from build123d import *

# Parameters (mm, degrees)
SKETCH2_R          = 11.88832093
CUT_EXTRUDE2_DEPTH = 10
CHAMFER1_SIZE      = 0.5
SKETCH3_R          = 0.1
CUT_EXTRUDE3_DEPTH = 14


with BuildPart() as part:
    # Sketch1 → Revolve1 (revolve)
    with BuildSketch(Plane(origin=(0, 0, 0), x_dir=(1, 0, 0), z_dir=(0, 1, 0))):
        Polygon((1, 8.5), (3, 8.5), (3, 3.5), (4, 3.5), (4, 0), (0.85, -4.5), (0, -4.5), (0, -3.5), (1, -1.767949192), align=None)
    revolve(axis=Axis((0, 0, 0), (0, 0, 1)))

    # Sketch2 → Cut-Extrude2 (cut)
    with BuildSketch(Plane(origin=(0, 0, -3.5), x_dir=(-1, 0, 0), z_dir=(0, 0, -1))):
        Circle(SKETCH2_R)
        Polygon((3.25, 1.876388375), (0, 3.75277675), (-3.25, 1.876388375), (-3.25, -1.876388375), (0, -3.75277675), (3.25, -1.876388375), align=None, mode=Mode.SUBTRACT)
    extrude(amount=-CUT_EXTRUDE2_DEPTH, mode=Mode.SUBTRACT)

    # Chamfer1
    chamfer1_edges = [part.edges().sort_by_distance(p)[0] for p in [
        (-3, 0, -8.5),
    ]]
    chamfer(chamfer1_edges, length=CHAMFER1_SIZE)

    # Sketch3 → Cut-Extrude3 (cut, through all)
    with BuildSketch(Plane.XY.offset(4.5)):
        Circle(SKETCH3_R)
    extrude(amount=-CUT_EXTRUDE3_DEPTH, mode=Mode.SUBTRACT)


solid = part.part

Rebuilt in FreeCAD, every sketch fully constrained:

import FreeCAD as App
import Part
import Sketcher

V = App.Vector
Q = App.Units.Quantity


def edges_at(feature, points):
    """Names of the edges that pass closest to the given points."""
    edges = feature.Shape.Edges
    near = lambda p: min(range(len(edges)), key=lambda i: edges[i].distToShape(Part.Vertex(*p))[0])
    return sorted({f"Edge{near(p) + 1}" for p in points})

doc = App.newDocument("Part")
body = doc.addObject("PartDesign::Body", "Body")

# Sketch on XZ plane
sketch1 = doc.addObject("Sketcher::SketchObject", "Sketch")
body.addObject(sketch1)
sketch1.AttachmentSupport = (doc.XZ_Plane, [""])
sketch1.MapMode = "FlatFace"
sketch1.addGeometry([
    Part.LineSegment(V(3, -8.5, 0), V(1, -8.5, 0)),  # 0
    Part.LineSegment(V(1, -8.5, 0), V(1, 1.8, 0)),  # 1
    Part.LineSegment(V(1, 1.8, 0), V(0, 3.5, 0)),  # 2
    Part.LineSegment(V(0, 3.5, 0), V(0, 4.5, 0)),  # 3
    Part.LineSegment(V(0, 4.5, 0), V(0.8, 4.5, 0)),  # 4
    Part.LineSegment(V(0.8, 4.5, 0), V(4, 0, 0)),  # 5
    Part.LineSegment(V(4, 0, 0), V(4, -3.5, 0)),  # 6
    Part.LineSegment(V(4, -3.5, 0), V(3, -3.5, 0)),  # 7
    Part.LineSegment(V(3, -3.5, 0), V(3, -8.5, 0)),  # 8
], False)
sketch1.addConstraint([
    Sketcher.Constraint("Coincident", 0, 2, 1, 1),
    Sketcher.Constraint("Coincident", 1, 2, 2, 1),
    Sketcher.Constraint("Coincident", 2, 2, 3, 1),
    Sketcher.Constraint("Coincident", 3, 2, 4, 1),
    Sketcher.Constraint("Coincident", 4, 2, 5, 1),
    Sketcher.Constraint("Coincident", 5, 2, 6, 1),
    Sketcher.Constraint("Coincident", 6, 2, 7, 1),
    Sketcher.Constraint("Coincident", 7, 2, 8, 1),
    Sketcher.Constraint("Coincident", 8, 2, 0, 1),
    Sketcher.Constraint("Horizontal", 0),
    Sketcher.Constraint("Vertical", 1),
    Sketcher.Constraint("Vertical", 3),
    Sketcher.Constraint("Horizontal", 4),
    Sketcher.Constraint("Vertical", 6),
    Sketcher.Constraint("Horizontal", 7),
    Sketcher.Constraint("Vertical", 8),
    Sketcher.Constraint("PointOnObject", 2, 2, -2),
    Sketcher.Constraint("PointOnObject", 5, 2, -1),
    Sketcher.Constraint("Equal", 7, 3),
    Sketcher.Constraint("DistanceX", 0, 2, 0, 1, Q("2 mm")),
    Sketcher.Constraint("DistanceX", 7, 2, 7, 1, Q("1 mm")),
    Sketcher.Constraint("DistanceY", 8, 2, 8, 1, Q("5 mm")),
    Sketcher.Constraint("Angle", 2, Q("120 deg")),
    Sketcher.Constraint("Distance", 2, Q("2 mm")),
    Sketcher.Constraint("DistanceY", 6, 2, 6, 1, Q("3.5 mm")),
    Sketcher.Constraint("DistanceY", 0, 2, 2, 2, Q("12 mm")),
    Sketcher.Constraint("DistanceX", 4, 1, 4, 2, Q("0.85 mm")),
])
revolution = doc.addObject("PartDesign::Revolution", "Revolution")
body.addObject(revolution)
revolution.Profile = sketch1
revolution.ReferenceAxis = (sketch1, ["V_Axis"])
revolution.Angle = 360

# Sketch on XY plane
sketch2 = doc.addObject("Sketcher::SketchObject", "Sketch001")
body.addObject(sketch2)
sketch2.AttachmentSupport = (doc.XY_Plane, [""])
sketch2.MapMode = "FlatFace"
sketch2.AttachmentOffset = App.Placement(V(0, 0, -3.5), App.Rotation())
sketch2.addGeometry([
    Part.Circle(V(0, 0, 0), V(0, 0, 1), 11.9),  # 0
    Part.LineSegment(V(0, 3.8, 0), V(-3.2, 1.9, 0)),  # 1
    Part.LineSegment(V(-3.2, 1.9, 0), V(-3.2, -1.9, 0)),  # 2
    Part.LineSegment(V(-3.2, -1.9, 0), V(0, -3.8, 0)),  # 3
    Part.LineSegment(V(0, -3.8, 0), V(3.2, -1.9, 0)),  # 4
    Part.LineSegment(V(3.2, -1.9, 0), V(3.2, 1.9, 0)),  # 5
    Part.LineSegment(V(3.2, 1.9, 0), V(0, 3.8, 0)),  # 6
], False)
sketch2.addConstraint([
    Sketcher.Constraint("Coincident", 1, 2, 2, 1),
    Sketcher.Constraint("Coincident", 2, 2, 3, 1),
    Sketcher.Constraint("Coincident", 3, 2, 4, 1),
    Sketcher.Constraint("Coincident", 4, 2, 5, 1),
    Sketcher.Constraint("Coincident", 5, 2, 6, 1),
    Sketcher.Constraint("Coincident", 6, 2, 1, 1),
    Sketcher.Constraint("Vertical", 2),
    Sketcher.Constraint("Vertical", 5),
    Sketcher.Constraint("Coincident", 0, 3, -1, 1),
    Sketcher.Constraint("Symmetric", 1, 2, 4, 2, -1, 1),
    Sketcher.Constraint("Symmetric", 3, 2, 6, 2, -1, 1),
    Sketcher.Constraint("PointOnObject", 3, 2, -2),
    Sketcher.Constraint("Parallel", 3, 6),
    Sketcher.Constraint("Horizontal", 2, 2, 4, 2),
    Sketcher.Constraint("Angle", 1, Q("-150 deg")),
    Sketcher.Constraint("DistanceX", 2, 2, 4, 2, Q("6.5 mm")),
    Sketcher.Constraint("Diameter", 0, Q("23.776642 mm")),
    Sketcher.Constraint("DistanceY", 2, 2, 2, 1, Q("3.752777 mm")),
])
pocket1 = doc.addObject("PartDesign::Pocket", "Pocket")
body.addObject(pocket1)
pocket1.Profile = sketch2
pocket1.Length = 10
pocket1.Reversed = True
doc.recompute()

chamfer = doc.addObject("PartDesign::Chamfer", "Chamfer")
body.addObject(chamfer)
chamfer.Base = (pocket1, edges_at(pocket1, [(-3, 0, -8.5)]))
chamfer.Size = 0.5

# Sketch on XY plane
sketch3 = doc.addObject("Sketcher::SketchObject", "Sketch002")
body.addObject(sketch3)
sketch3.AttachmentSupport = (doc.XY_Plane, [""])
sketch3.MapMode = "FlatFace"
sketch3.AttachmentOffset = App.Placement(V(0, 0, 4.5), App.Rotation())
sketch3.addGeometry(Part.Circle(V(0, 0, 0), V(0, 0, 1), 0.1), False)
sketch3.addConstraint([
    Sketcher.Constraint("Coincident", 0, 3, -1, 1),
    Sketcher.Constraint("Diameter", 0, Q("0.2 mm")),
])
pocket2 = doc.addObject("PartDesign::Pocket", "Pocket001")
body.addObject(pocket2)
pocket2.Profile = sketch3
pocket2.Type = "ThroughAll"

doc.recompute()
